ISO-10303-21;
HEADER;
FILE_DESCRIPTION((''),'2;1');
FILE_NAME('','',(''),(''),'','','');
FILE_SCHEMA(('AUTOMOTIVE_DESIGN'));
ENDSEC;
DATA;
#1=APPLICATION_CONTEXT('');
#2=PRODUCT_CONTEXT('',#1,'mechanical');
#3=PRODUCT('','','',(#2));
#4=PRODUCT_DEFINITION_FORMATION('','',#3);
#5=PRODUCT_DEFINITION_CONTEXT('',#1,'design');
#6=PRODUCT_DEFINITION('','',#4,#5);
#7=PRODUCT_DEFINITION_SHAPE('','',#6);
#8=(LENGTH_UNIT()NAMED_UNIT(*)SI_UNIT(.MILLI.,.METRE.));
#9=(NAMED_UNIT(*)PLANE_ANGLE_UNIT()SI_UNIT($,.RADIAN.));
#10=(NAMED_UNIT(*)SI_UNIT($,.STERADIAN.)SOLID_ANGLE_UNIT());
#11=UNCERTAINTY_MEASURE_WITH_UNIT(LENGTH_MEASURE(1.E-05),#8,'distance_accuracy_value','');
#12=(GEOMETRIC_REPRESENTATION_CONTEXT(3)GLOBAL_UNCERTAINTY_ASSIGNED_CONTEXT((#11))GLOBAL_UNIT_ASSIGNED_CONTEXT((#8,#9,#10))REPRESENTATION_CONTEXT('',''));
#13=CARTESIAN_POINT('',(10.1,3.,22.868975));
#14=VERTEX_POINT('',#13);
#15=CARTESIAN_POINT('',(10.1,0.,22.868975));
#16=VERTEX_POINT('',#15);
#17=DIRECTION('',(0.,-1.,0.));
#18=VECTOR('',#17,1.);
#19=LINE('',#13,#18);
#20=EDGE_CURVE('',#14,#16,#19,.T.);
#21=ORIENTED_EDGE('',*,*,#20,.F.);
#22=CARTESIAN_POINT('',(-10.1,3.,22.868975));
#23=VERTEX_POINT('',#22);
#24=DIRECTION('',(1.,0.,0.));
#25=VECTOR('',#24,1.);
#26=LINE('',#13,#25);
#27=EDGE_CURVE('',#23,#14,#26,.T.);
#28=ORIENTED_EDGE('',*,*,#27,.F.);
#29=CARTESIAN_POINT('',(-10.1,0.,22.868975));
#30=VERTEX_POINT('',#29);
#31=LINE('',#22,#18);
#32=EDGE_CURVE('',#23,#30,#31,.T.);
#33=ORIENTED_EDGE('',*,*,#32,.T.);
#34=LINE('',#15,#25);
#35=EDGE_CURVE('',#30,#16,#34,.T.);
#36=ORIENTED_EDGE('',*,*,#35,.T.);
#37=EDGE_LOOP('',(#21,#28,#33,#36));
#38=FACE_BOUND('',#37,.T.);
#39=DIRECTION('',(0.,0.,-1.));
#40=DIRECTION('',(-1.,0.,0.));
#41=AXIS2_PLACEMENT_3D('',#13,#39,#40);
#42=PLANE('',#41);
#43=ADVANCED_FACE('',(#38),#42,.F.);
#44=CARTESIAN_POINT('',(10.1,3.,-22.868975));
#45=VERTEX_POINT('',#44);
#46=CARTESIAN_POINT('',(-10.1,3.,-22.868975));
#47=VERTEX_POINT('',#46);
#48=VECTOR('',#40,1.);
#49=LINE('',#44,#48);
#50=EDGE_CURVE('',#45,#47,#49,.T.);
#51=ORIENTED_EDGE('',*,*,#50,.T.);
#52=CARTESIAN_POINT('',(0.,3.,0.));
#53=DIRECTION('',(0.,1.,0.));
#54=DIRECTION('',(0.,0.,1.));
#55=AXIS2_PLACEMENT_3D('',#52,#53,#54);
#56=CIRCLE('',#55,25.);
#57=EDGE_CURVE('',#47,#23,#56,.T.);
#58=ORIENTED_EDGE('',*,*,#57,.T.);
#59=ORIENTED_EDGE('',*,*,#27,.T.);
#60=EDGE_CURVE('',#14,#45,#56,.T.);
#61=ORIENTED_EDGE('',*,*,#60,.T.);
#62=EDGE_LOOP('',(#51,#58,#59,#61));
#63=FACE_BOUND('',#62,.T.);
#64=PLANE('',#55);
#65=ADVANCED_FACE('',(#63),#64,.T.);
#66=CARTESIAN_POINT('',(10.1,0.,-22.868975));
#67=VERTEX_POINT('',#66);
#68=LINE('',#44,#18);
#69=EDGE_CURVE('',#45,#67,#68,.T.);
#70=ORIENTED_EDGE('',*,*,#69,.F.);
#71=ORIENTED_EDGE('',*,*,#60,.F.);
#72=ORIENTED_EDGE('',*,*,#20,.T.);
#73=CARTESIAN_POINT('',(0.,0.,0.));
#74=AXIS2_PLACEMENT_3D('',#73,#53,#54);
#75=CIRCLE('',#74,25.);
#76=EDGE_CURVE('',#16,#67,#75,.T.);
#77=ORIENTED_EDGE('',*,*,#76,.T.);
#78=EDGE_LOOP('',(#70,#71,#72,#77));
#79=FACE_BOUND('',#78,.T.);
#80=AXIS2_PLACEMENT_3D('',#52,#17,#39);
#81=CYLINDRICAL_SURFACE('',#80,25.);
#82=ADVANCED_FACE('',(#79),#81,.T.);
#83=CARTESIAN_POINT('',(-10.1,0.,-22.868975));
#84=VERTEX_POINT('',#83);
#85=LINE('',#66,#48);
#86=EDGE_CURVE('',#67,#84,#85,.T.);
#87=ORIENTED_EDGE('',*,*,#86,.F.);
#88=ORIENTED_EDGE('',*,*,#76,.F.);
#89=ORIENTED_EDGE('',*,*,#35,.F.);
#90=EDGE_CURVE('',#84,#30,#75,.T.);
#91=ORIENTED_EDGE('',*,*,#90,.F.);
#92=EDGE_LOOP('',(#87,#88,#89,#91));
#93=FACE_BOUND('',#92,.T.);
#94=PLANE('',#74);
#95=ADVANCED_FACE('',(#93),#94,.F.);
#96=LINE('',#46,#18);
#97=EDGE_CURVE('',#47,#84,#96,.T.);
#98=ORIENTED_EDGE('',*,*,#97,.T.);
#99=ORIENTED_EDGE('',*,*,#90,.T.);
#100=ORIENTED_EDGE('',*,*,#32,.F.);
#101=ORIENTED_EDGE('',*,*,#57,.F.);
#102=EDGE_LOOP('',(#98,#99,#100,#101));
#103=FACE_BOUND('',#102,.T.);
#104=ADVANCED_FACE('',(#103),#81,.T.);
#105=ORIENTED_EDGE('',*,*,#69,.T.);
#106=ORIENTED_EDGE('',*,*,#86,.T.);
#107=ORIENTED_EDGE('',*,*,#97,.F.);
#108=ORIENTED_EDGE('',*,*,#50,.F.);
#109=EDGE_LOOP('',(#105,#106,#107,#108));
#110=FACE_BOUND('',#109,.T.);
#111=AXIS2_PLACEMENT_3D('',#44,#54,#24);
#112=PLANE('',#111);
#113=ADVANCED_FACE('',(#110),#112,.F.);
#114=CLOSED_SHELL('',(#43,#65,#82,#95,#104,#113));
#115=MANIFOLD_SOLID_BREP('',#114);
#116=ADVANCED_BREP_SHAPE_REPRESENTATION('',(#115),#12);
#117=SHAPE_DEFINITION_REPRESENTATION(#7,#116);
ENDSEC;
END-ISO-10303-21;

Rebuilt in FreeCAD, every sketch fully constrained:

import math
import FreeCAD as App
import Part
import Sketcher
from FreeCAD import Vector

doc = App.newDocument("Part")
body = doc.addObject("PartDesign::Body", "Body")

# Sketch on XZ plane
sketch1 = doc.addObject("Sketcher::SketchObject", "Sketch")
body.addObject(sketch1)
sketch1.AttachmentSupport = (doc.XZ_Plane, [""])
sketch1.MapMode = "FlatFace"
sketch1.addGeometry([
    Part.LineSegment(Vector(-10, 23, 0), Vector(10, 23, 0)),
    Part.ArcOfCircle(Part.Circle(Vector(0, 0, 0), Vector(0, 0, 1), 25), math.radians(-66), math.radians(66)),
    Part.LineSegment(Vector(10, -23, 0), Vector(-10, -23, 0)),
    Part.ArcOfCircle(Part.Circle(Vector(0, 0, 0), Vector(0, 0, 1), 25), math.radians(114), math.radians(246)),
], False)
sketch1.addConstraint([
    Sketcher.Constraint("Coincident", 0, 2, 1, 2),
    Sketcher.Constraint("Coincident", 1, 1, 2, 1),
    Sketcher.Constraint("Coincident", 2, 2, 3, 2),
    Sketcher.Constraint("Coincident", 3, 1, 0, 1),
    Sketcher.Constraint("Horizontal", 0),
    Sketcher.Constraint("Horizontal", 2),
    Sketcher.Constraint("Coincident", 1, 3, -1, 1),
    Sketcher.Constraint("Coincident", 3, 3, -1, 1),
    Sketcher.Constraint("Equal", 1, 3),
    Sketcher.Constraint("Vertical", 0, 2, 1, 1),
    Sketcher.Constraint("Radius", 1, 25.0),
    Sketcher.Constraint("DistanceX", 0, 1, 0, 2, 20.2),
])
pad1 = doc.addObject("PartDesign::Pad", "Pad")
body.addObject(pad1)
pad1.Profile = sketch1
pad1.Length = 3
pad1.Reversed = True

doc.recompute()
